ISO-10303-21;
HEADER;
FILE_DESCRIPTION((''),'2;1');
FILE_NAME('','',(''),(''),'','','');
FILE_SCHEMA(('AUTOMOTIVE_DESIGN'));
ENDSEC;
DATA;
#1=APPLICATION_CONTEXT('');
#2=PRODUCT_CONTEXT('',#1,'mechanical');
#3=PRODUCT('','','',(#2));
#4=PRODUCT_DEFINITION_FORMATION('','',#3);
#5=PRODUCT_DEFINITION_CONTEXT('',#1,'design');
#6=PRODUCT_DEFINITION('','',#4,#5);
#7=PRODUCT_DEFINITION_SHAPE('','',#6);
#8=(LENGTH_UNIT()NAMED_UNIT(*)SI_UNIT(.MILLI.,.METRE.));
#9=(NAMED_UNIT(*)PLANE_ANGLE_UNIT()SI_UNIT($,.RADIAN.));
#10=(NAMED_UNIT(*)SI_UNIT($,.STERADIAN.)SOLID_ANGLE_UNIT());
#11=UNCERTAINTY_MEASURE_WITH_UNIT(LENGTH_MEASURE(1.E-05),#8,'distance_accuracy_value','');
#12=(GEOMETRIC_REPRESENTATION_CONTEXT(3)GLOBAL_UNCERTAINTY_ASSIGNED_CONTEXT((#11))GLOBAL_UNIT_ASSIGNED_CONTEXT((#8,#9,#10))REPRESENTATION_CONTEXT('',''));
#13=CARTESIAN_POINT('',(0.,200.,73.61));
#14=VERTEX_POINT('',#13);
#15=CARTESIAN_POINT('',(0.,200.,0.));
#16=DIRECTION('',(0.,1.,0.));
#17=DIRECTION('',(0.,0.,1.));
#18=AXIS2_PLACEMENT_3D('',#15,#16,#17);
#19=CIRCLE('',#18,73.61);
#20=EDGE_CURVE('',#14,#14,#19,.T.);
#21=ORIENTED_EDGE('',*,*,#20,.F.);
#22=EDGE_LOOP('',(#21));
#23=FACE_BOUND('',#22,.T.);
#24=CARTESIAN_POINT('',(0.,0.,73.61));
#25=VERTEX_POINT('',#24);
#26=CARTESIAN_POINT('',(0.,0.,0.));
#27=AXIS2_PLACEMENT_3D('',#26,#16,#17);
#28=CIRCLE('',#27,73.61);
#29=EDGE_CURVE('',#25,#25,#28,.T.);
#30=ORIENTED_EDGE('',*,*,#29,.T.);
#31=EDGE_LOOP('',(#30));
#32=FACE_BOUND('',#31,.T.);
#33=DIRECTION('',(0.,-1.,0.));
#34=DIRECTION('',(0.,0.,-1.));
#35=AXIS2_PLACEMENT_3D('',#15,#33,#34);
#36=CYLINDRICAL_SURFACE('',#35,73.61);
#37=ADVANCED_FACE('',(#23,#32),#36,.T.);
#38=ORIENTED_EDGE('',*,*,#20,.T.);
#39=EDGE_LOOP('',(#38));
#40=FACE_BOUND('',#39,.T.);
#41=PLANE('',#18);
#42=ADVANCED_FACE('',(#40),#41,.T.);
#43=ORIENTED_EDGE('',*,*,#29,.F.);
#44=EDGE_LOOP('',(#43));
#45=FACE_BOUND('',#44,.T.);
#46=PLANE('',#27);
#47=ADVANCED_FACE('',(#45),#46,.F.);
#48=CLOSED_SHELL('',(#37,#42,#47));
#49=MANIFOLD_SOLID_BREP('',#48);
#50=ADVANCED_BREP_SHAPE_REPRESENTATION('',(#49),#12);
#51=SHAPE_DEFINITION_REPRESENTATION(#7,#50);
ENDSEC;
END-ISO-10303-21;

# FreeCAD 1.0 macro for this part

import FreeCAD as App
import Part
import Sketcher

doc = App.newDocument("Part")
params = doc.addObject("Spreadsheet::Sheet", "Params")
for row, (alias, value) in enumerate([
    ("sketch1_diameter", "147.22 mm"),
    ("pad1_length", "200 mm"),
], start=1):
    params.set(f"A{row}", alias)
    params.set(f"B{row}", "=" + value)
    params.setAlias(f"B{row}", alias)

body = doc.addObject("PartDesign::Body", "Body")

sketch1 = body.newObject("Sketcher::SketchObject", "Sketch")
sketch1.AttachmentSupport = (doc.getObject("XZ_Plane"), [""])
sketch1.MapMode = "FlatFace"
sketch1.addGeometry(Part.Circle(App.Vector(0, 0, 0), App.Vector(0, 0, 1), 74), False)
sketch1.addConstraint([
    Sketcher.Constraint("Coincident", 0, 3, -1, 1),
    Sketcher.Constraint("Diameter", 0, 147.22),
])
sketch1.setExpression("Constraints[1]", "Params.sketch1_diameter")
pad1 = body.newObject("PartDesign::Pad", "Pad")
pad1.Profile = sketch1
pad1.setExpression("Length", "Params.pad1_length")
pad1.Reversed = True

doc.recompute()
